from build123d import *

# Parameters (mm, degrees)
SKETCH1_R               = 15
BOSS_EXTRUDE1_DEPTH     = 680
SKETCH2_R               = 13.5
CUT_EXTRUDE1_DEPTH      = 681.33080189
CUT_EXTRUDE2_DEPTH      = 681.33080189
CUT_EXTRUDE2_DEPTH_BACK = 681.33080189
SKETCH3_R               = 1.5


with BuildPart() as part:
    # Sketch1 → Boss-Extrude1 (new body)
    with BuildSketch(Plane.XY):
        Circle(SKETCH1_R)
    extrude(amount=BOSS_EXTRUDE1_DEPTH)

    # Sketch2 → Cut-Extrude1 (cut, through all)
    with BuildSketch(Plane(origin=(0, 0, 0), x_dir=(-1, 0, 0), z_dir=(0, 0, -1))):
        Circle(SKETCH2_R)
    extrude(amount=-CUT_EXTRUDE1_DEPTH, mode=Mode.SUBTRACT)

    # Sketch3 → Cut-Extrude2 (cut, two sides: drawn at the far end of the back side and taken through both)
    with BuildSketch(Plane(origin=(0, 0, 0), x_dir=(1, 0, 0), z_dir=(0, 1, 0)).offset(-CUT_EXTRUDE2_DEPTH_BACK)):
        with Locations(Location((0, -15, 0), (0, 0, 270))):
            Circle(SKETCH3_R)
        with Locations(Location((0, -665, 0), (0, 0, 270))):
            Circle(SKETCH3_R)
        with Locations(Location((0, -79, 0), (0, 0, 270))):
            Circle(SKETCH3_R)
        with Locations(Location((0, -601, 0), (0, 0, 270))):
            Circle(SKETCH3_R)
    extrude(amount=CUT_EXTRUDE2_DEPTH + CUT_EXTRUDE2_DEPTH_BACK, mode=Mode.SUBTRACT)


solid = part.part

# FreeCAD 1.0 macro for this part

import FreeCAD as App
import Part
import Sketcher

doc = App.newDocument("Part")
body = doc.addObject("PartDesign::Body", "Body")

# Sketch on XY plane
sketch1 = doc.addObject("Sketcher::SketchObject", "Sketch")
body.addObject(sketch1)
sketch1.AttachmentSupport = (doc.XY_Plane, [""])
sketch1.MapMode = "FlatFace"
sketch1.addGeometry(Part.Circle(App.Vector(0, 0, 0), App.Vector(0, 0, 1), 15), False)
sketch1.addConstraint([
    Sketcher.Constraint("Coincident", 0, 3, -1, 1),
    Sketcher.Constraint("Diameter", 0, 30.0),
])
pad1 = doc.addObject("PartDesign::Pad", "Pad")
body.addObject(pad1)
pad1.Profile = sketch1
pad1.Length = 680

# Sketch on XY plane
sketch2 = doc.addObject("Sketcher::SketchObject", "Sketch001")
body.addObject(sketch2)
sketch2.AttachmentSupport = (doc.XY_Plane, [""])
sketch2.MapMode = "FlatFace"
sketch2.addGeometry(Part.Circle(App.Vector(0, 0, 0), App.Vector(0, 0, 1), 14), False)
sketch2.addConstraint([
    Sketcher.Constraint("Coincident", 0, 3, -1, 1),
    Sketcher.Constraint("Diameter", 0, 27.0),
])
pocket1 = doc.addObject("PartDesign::Pocket", "Pocket")
body.addObject(pocket1)
pocket1.Profile = sketch2
pocket1.Type = "ThroughAll"
pocket1.Reversed = True

# Sketch on XZ plane
sketch3 = doc.addObject("Sketcher::SketchObject", "Sketch002")
body.addObject(sketch3)
sketch3.AttachmentSupport = (doc.XZ_Plane, [""])
sketch3.MapMode = "FlatFace"
sketch3.addGeometry([
    Part.Circle(App.Vector(0, 15, 0), App.Vector(0, 0, 1), 1.5),
    Part.Circle(App.Vector(0, 665, 0), App.Vector(0, 0, 1), 1.5),
    Part.Circle(App.Vector(0, 79, 0), App.Vector(0, 0, 1), 1.5),
    Part.Circle(App.Vector(0, 601, 0), App.Vector(0, 0, 1), 1.5),
], False)
sketch3.addConstraint([
    Sketcher.Constraint("Equal", 0, 1),
    Sketcher.Constraint("Equal", 1, 2),
    Sketcher.Constraint("Equal", 2, 3),
    Sketcher.Constraint("PointOnObject", 0, 3, -2),
    Sketcher.Constraint("PointOnObject", 1, 3, -2),
    Sketcher.Constraint("PointOnObject", 2, 3, -2),
    Sketcher.Constraint("PointOnObject", 3, 3, -2),
    Sketcher.Constraint("Diameter", 0, 3.0),
    Sketcher.Constraint("DistanceY", -1, 1, 0, 3, 15.0),
    Sketcher.Constraint("DistanceY", -1, 1, 1, 3, 665.0),
    Sketcher.Constraint("DistanceY", -1, 1, 2, 3, 79.0),
    Sketcher.Constraint("DistanceY", -1, 1, 3, 3, 601.0),
])
pocket2 = doc.addObject("PartDesign::Pocket", "Pocket001")
body.addObject(pocket2)
pocket2.Profile = sketch3
pocket2.Type = "ThroughAll"
pocket2.Midplane = True

doc.recompute()
